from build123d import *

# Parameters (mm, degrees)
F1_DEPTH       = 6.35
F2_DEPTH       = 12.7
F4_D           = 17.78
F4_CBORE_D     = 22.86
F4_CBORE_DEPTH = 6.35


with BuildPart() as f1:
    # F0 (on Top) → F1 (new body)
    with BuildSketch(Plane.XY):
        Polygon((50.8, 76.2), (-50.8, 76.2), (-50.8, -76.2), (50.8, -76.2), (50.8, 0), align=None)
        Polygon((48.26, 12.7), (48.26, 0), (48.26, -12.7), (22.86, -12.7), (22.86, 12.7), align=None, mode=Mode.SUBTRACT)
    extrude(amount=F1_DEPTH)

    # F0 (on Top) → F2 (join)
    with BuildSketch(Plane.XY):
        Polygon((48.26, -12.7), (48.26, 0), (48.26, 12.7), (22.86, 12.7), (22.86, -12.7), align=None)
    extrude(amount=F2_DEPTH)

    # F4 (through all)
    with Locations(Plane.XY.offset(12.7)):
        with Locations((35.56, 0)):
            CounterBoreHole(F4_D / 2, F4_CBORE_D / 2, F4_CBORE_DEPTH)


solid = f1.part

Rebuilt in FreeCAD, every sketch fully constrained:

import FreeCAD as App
import Part
import Sketcher

V = App.Vector
Q = App.Units.Quantity

doc = App.newDocument("Part")
body = doc.addObject("PartDesign::Body", "Body")

# Sketch on XY plane
sketch1 = doc.addObject("Sketcher::SketchObject", "Sketch")
body.addObject(sketch1)
sketch1.AttachmentSupport = (doc.XY_Plane, [""])
sketch1.MapMode = "FlatFace"
sketch1.addGeometry([
    Part.LineSegment(V(51, 76, 0), V(-51, 76, 0)),  # 0
    Part.LineSegment(V(-51, 76, 0), V(-51, -76, 0)),  # 1
    Part.LineSegment(V(-51, -76, 0), V(51, -76, 0)),  # 2
    Part.LineSegment(V(51, -76, 0), V(51, 76, 0)),  # 3
    Part.LineSegment(V(23, 13, 0), V(48, 13, 0)),  # 4
    Part.LineSegment(V(48, 13, 0), V(48, -13, 0)),  # 5
    Part.LineSegment(V(48, -13, 0), V(23, -13, 0)),  # 6
    Part.LineSegment(V(23, -13, 0), V(23, 13, 0)),  # 7
], False)
sketch1.addConstraint([
    Sketcher.Constraint("Coincident", 0, 2, 1, 1),
    Sketcher.Constraint("Coincident", 1, 2, 2, 1),
    Sketcher.Constraint("Coincident", 2, 2, 3, 1),
    Sketcher.Constraint("Coincident", 3, 2, 0, 1),
    Sketcher.Constraint("Coincident", 4, 2, 5, 1),
    Sketcher.Constraint("Coincident", 5, 2, 6, 1),
    Sketcher.Constraint("Coincident", 6, 2, 7, 1),
    Sketcher.Constraint("Coincident", 7, 2, 4, 1),
    Sketcher.Constraint("Horizontal", 0),
    Sketcher.Constraint("Vertical", 1),
    Sketcher.Constraint("Horizontal", 2),
    Sketcher.Constraint("Vertical", 3),
    Sketcher.Constraint("Horizontal", 4),
    Sketcher.Constraint("Vertical", 5),
    Sketcher.Constraint("Horizontal", 6),
    Sketcher.Constraint("Vertical", 7),
    Sketcher.Constraint("Symmetric", 0, 2, 2, 2, -1, 1),
    Sketcher.Constraint("Equal", 6, 5),
    Sketcher.Constraint("DistanceX", 0, 2, 0, 1, Q("4 in")),
    Sketcher.Constraint("DistanceX", 4, 1, 4, 2, Q("1 in")),
    Sketcher.Constraint("DistanceY", 1, 2, 1, 1, Q("6 in")),
    Sketcher.Constraint("DistanceX", -1, 1, 4, 2, Q("1.9 in")),
    Sketcher.Constraint("DistanceY", -1, 1, 4, 2, Q("0.5 in")),
])
pad1 = doc.addObject("PartDesign::Pad", "Pad")
body.addObject(pad1)
pad1.Profile = sketch1
pad1.Length = Q("0.25 in")

# Sketch on XY plane
sketch2 = doc.addObject("Sketcher::SketchObject", "Sketch001")
body.addObject(sketch2)
sketch2.AttachmentSupport = (doc.XY_Plane, [""])
sketch2.MapMode = "FlatFace"
sketch2.addGeometry([
    Part.LineSegment(V(48, -13, 0), V(48, 13, 0)),
    Part.LineSegment(V(48, 13, 0), V(23, 13, 0)),
    Part.LineSegment(V(23, 13, 0), V(23, -13, 0)),
    Part.LineSegment(V(23, -13, 0), V(48, -13, 0)),
], False)
sketch2.addConstraint([
    Sketcher.Constraint("Coincident", 0, 2, 1, 1),
    Sketcher.Constraint("Coincident", 1, 2, 2, 1),
    Sketcher.Constraint("Coincident", 2, 2, 3, 1),
    Sketcher.Constraint("Coincident", 3, 2, 0, 1),
    Sketcher.Constraint("Vertical", 0),
    Sketcher.Constraint("Horizontal", 1),
    Sketcher.Constraint("Vertical", 2),
    Sketcher.Constraint("Horizontal", 3),
    Sketcher.Constraint("Equal", 3, 0),
    Sketcher.Constraint("DistanceX", 1, 2, 1, 1, Q("1 in")),
    Sketcher.Constraint("DistanceX", -1, 1, 0, 2, Q("1.9 in")),
    Sketcher.Constraint("DistanceY", -1, 1, 0, 2, Q("0.5 in")),
])
pad2 = doc.addObject("PartDesign::Pad", "Pad001")
body.addObject(pad2)
pad2.Profile = sketch2
pad2.Length = Q("0.5 in")

# Sketch on XY plane
sketch3 = doc.addObject("Sketcher::SketchObject", "Sketch002")
body.addObject(sketch3)
sketch3.AttachmentSupport = (doc.XY_Plane, [""])
sketch3.MapMode = "FlatFace"
sketch3.AttachmentOffset = App.Placement(V(0, 0, 0.5 * 25.4), App.Rotation())
sketch3.addGeometry(Part.Circle(V(36, 0, 0), V(0, 0, 1), 9), False)
sketch3.addConstraint([
    Sketcher.Constraint("PointOnObject", 0, 3, -1),
    Sketcher.Constraint("Diameter", 0, Q("0.7 in")),
    Sketcher.Constraint("DistanceX", -1, 1, 0, 3, Q("1.4 in")),
])
doc.recompute()
hole = doc.addObject("PartDesign::Hole", "Hole")
body.addObject(hole)
hole.Profile = sketch3
hole.ThreadType = "None"
hole.Diameter = Q("0.7 in")
hole.DepthType = "ThroughAll"
hole.HoleCutType = "Counterbore"
hole.HoleCutDiameter = Q("0.9 in")
hole.HoleCutDepth = Q("0.25 in")

doc.recompute()
